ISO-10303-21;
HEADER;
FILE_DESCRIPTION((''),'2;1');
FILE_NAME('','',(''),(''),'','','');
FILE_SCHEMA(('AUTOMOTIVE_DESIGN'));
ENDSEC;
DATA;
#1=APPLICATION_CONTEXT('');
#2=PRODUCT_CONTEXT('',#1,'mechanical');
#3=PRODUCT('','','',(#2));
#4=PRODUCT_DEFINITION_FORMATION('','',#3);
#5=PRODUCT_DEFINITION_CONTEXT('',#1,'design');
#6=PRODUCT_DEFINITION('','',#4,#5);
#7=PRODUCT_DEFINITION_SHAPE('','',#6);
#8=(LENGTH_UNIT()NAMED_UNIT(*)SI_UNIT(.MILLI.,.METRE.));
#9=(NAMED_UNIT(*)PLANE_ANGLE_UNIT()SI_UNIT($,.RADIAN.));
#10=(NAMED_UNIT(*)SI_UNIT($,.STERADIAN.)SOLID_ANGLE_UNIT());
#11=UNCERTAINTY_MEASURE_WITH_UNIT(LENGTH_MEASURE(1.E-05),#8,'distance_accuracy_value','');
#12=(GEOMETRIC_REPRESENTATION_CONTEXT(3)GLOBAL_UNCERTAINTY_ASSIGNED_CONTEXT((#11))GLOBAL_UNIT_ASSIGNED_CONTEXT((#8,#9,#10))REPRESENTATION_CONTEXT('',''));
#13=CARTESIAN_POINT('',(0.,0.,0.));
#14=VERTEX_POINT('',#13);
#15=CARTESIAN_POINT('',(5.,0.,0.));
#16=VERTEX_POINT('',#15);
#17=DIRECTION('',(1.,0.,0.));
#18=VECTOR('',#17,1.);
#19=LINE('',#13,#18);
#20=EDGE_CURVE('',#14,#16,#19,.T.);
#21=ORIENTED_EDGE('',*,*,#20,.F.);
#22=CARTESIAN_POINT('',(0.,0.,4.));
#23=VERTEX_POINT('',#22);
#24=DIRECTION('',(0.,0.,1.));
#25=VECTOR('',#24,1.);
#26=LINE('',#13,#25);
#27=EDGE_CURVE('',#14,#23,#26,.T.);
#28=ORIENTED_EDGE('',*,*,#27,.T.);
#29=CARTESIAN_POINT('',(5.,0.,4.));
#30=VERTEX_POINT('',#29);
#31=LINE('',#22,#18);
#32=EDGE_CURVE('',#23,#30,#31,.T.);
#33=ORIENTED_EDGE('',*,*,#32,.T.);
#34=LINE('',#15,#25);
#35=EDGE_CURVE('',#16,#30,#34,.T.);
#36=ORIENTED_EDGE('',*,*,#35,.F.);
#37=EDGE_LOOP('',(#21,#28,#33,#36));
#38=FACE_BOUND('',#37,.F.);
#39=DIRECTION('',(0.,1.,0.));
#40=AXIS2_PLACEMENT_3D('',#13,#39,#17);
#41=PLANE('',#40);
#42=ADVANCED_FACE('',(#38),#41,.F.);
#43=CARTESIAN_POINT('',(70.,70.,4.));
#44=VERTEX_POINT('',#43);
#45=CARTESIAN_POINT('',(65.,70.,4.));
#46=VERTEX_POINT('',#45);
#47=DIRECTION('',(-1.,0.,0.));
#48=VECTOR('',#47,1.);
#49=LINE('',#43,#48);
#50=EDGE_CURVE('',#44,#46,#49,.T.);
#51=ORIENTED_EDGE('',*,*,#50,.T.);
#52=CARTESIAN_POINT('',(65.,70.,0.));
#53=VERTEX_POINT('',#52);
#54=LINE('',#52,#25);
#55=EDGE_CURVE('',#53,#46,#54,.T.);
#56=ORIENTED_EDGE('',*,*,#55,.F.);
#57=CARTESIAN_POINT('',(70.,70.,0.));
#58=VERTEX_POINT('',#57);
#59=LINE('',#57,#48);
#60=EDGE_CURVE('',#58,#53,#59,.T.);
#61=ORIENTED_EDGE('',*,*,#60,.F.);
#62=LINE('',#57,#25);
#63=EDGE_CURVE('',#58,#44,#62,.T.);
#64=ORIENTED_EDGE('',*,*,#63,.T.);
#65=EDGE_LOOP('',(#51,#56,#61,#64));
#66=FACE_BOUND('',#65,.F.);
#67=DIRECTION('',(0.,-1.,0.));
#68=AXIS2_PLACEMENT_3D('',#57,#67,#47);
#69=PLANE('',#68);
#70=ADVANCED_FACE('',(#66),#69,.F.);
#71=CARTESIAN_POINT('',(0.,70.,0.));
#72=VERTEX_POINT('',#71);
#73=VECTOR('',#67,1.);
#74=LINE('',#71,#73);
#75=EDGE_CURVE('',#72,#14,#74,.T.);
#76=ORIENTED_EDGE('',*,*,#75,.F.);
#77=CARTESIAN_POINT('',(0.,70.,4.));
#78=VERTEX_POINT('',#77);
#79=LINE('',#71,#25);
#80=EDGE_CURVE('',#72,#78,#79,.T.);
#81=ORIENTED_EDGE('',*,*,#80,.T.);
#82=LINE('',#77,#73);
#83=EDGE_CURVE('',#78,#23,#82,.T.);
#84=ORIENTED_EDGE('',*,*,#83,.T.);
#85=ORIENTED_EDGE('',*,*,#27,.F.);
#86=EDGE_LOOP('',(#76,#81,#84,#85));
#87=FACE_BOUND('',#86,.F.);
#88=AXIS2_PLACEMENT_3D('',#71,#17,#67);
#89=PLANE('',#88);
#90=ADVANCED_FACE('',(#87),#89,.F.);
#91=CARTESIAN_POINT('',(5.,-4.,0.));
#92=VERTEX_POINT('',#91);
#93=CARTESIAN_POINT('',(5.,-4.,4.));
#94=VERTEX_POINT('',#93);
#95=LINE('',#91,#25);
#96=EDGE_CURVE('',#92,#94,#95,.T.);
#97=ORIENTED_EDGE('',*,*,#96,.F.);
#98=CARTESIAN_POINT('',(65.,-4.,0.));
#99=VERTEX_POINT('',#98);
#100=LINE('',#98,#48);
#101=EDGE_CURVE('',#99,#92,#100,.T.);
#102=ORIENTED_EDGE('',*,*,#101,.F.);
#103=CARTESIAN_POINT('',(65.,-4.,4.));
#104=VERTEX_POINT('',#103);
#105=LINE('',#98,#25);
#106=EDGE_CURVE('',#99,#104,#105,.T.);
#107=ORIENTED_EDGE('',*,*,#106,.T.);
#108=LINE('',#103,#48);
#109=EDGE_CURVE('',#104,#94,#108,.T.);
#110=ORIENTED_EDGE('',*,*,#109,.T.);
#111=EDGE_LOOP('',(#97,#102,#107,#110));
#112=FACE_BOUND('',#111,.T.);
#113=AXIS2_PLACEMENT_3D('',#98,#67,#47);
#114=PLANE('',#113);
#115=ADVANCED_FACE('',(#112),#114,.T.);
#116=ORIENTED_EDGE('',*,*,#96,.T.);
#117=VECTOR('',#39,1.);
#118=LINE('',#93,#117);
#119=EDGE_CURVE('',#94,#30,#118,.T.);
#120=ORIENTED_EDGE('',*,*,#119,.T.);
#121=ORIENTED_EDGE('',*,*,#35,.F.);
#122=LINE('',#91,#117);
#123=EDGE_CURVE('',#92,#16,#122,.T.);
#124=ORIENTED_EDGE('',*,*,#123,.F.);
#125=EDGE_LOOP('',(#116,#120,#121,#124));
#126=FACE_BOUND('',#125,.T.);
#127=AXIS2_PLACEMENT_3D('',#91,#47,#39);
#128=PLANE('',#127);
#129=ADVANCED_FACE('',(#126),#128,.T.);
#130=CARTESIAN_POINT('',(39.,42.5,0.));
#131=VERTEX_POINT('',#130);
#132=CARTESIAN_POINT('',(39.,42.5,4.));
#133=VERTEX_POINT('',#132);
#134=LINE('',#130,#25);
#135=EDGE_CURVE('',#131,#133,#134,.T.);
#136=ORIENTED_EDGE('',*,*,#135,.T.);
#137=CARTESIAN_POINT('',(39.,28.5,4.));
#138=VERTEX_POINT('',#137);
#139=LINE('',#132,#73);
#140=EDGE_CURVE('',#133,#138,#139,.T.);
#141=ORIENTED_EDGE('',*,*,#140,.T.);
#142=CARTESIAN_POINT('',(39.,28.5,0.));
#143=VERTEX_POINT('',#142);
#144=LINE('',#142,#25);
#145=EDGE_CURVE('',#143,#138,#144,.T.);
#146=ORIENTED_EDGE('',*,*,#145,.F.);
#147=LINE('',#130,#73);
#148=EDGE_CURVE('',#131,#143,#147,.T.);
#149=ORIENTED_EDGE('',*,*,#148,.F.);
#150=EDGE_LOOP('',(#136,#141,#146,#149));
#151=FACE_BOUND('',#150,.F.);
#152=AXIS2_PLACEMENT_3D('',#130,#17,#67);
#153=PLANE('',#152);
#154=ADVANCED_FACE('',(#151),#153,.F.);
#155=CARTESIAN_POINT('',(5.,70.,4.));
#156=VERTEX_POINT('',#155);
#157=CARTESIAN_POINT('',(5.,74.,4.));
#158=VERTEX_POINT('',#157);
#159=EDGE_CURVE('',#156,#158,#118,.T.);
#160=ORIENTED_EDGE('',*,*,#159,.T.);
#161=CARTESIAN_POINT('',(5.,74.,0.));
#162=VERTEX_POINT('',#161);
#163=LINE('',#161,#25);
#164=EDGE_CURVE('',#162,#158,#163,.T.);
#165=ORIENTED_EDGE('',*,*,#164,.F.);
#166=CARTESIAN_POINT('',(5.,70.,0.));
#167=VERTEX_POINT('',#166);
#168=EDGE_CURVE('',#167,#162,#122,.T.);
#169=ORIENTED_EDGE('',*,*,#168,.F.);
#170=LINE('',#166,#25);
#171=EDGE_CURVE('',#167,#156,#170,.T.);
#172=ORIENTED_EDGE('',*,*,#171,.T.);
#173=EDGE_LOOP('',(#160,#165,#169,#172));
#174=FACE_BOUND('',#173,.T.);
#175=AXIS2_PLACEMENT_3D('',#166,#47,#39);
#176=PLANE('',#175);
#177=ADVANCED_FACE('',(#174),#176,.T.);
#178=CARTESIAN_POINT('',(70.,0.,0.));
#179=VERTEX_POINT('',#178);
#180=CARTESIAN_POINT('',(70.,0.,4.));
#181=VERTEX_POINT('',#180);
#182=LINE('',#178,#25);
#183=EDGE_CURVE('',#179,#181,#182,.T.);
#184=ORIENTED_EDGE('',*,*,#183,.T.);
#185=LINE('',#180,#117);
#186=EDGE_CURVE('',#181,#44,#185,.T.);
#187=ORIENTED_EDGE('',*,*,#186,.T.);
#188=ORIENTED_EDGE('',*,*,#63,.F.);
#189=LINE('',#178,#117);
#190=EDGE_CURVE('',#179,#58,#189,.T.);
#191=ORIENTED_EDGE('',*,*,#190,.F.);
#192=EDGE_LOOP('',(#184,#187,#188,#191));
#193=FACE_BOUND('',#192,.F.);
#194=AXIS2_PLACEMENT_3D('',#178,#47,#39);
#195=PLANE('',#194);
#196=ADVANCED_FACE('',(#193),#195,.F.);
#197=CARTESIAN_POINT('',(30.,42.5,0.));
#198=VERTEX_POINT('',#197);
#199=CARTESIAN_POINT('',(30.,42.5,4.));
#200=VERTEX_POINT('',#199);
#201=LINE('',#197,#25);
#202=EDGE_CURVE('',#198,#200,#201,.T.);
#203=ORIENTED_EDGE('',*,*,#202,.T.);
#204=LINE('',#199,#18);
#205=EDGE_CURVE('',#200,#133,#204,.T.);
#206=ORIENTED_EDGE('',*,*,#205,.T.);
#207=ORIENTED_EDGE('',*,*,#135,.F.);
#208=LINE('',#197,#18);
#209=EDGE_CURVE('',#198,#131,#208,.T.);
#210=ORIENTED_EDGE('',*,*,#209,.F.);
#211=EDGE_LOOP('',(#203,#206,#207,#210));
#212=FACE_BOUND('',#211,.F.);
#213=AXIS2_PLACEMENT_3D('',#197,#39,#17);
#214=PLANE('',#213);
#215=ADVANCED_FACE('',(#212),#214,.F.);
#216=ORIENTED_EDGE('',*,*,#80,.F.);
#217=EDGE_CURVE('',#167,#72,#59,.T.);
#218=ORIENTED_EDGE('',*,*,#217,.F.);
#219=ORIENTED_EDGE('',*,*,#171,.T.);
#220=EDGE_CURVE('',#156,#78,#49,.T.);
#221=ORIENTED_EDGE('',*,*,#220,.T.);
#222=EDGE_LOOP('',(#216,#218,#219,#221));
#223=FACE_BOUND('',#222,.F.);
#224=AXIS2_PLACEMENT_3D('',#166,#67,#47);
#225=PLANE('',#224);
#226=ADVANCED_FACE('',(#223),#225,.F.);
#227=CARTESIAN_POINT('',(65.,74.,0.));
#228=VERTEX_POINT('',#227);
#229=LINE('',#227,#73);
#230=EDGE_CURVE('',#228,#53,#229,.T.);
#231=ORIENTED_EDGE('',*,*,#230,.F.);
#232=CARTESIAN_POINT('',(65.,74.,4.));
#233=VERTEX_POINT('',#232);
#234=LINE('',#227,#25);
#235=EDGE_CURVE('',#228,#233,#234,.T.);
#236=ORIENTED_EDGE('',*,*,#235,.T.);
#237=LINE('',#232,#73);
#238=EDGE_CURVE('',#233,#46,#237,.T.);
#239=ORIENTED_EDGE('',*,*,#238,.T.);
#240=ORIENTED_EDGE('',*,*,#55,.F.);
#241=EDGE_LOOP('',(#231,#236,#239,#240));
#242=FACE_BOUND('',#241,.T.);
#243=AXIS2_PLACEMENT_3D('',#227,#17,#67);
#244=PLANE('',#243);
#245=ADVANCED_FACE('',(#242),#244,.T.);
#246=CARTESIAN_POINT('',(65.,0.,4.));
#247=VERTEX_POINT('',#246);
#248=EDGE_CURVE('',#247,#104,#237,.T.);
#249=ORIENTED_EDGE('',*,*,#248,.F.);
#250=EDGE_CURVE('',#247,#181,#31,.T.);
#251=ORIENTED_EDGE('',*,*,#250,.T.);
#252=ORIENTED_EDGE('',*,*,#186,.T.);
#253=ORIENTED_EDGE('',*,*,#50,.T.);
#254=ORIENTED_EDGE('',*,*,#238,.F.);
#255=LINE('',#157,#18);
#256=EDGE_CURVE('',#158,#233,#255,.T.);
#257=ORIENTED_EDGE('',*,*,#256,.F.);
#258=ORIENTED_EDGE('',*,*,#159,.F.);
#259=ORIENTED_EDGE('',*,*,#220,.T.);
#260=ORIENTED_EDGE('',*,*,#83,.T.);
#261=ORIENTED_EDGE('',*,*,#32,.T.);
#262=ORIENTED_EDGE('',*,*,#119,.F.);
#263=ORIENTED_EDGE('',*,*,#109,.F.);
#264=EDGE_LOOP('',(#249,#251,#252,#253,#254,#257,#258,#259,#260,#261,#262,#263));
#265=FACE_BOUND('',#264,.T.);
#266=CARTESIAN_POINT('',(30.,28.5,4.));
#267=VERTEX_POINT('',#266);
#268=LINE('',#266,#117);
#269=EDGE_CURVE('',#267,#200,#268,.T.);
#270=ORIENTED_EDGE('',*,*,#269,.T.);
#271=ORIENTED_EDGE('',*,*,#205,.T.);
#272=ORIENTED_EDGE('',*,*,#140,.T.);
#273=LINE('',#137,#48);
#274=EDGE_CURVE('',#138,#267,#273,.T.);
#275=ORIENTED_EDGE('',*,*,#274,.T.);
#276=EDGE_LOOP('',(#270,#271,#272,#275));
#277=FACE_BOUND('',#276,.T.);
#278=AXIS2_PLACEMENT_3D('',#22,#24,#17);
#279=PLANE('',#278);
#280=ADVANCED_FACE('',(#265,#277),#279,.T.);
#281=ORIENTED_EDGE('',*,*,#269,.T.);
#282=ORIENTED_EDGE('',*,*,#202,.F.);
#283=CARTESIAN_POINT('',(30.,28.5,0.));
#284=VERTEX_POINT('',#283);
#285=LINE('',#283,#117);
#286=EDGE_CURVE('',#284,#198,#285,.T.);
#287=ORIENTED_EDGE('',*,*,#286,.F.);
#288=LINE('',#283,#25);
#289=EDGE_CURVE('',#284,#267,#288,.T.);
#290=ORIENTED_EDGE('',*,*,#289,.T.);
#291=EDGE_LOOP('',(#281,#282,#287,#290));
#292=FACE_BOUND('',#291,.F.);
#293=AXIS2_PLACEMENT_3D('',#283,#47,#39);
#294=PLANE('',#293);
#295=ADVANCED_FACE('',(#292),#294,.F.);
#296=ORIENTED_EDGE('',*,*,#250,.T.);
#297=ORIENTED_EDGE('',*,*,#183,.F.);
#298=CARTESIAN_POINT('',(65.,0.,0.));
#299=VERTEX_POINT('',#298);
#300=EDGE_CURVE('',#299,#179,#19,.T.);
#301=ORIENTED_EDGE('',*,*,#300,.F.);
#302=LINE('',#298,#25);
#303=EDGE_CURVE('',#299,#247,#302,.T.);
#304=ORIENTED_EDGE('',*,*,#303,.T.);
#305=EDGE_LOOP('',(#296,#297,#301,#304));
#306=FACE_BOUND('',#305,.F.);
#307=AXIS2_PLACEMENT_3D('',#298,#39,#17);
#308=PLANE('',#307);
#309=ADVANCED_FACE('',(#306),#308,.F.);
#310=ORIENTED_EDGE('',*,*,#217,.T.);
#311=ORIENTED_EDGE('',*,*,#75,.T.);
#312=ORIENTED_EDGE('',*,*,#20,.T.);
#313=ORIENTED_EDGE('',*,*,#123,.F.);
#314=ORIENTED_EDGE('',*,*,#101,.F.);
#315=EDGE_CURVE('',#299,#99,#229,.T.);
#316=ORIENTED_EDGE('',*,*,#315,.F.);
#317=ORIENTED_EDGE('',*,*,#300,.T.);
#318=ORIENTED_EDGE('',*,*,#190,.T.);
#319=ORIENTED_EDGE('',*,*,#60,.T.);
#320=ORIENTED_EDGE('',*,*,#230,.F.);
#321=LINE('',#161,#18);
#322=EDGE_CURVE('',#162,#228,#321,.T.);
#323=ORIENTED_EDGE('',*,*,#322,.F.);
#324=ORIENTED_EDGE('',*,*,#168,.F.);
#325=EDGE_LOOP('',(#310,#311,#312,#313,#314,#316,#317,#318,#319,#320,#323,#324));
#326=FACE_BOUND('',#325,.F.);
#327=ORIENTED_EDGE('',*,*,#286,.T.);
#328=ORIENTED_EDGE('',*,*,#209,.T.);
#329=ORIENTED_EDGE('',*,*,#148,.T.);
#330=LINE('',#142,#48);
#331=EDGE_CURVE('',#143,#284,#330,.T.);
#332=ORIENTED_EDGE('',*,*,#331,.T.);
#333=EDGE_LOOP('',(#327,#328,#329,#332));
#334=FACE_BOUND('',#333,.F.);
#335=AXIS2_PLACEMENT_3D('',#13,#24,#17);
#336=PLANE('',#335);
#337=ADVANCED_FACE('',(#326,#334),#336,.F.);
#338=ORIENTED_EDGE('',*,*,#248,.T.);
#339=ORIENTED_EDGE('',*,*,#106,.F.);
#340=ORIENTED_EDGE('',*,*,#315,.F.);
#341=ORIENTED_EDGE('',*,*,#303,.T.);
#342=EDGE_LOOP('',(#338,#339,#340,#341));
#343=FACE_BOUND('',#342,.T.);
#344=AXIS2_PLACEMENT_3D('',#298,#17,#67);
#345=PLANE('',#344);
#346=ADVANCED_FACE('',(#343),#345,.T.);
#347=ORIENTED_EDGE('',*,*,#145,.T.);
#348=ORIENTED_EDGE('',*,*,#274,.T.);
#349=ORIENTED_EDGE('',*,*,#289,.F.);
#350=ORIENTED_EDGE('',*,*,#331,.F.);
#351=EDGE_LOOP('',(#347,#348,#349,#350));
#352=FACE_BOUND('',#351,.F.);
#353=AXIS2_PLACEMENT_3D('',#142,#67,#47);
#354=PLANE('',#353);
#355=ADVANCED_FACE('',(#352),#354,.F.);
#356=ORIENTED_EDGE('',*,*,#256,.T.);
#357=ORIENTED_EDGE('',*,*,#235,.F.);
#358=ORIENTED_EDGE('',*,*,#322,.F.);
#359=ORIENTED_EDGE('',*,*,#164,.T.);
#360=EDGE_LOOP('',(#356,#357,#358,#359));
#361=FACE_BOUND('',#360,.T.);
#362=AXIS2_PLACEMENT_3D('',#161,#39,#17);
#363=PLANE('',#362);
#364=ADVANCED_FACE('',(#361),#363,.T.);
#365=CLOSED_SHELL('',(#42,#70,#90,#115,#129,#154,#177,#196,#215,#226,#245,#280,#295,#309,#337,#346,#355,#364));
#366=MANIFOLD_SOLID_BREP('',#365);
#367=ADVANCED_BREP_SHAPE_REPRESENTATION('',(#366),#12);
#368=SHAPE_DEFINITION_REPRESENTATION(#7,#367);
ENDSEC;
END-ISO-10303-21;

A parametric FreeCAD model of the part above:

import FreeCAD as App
import Part
import Sketcher
from FreeCAD import Vector

doc = App.newDocument("Part")
params = doc.addObject("Spreadsheet::Sheet", "Params")
for row, (alias, value) in enumerate([
    ("sketch1_width", "5 mm"),
    ("sketch1_width2", "9 mm"),
    ("sketch1_height", "70 mm"),
    ("sketch1_height2", "4 mm"),
    ("sketch1_height3", "14 mm"),
    ("pad1_length", "4 mm"),
], start=1):
    params.set(f"A{row}", alias)
    params.set(f"B{row}", "=" + value)
    params.setAlias(f"B{row}", alias)

body = doc.addObject("PartDesign::Body", "Body")

sketch1 = doc.addObject("Sketcher::SketchObject", "Sketch")
body.addObject(sketch1)
sketch1.AttachmentSupport = (doc.XY_Plane, [""])
sketch1.MapMode = "FlatFace"
sketch1.addGeometry([
    Part.LineSegment(Vector(0, 70, 0), Vector(0, 0, 0)),
    Part.LineSegment(Vector(0, 0, 0), Vector(5, 0, 0)),
    Part.LineSegment(Vector(5, 0, 0), Vector(5, -4, 0)),
    Part.LineSegment(Vector(5, -4, 0), Vector(65, -4, 0)),
    Part.LineSegment(Vector(65, -4, 0), Vector(65, 0, 0)),
    Part.LineSegment(Vector(65, 0, 0), Vector(70, 0, 0)),
    Part.LineSegment(Vector(70, 0, 0), Vector(70, 70, 0)),
    Part.LineSegment(Vector(70, 70, 0), Vector(65, 70, 0)),
    Part.LineSegment(Vector(65, 70, 0), Vector(65, 74, 0)),
    Part.LineSegment(Vector(65, 74, 0), Vector(5, 74, 0)),
    Part.LineSegment(Vector(5, 74, 0), Vector(5, 70, 0)),
    Part.LineSegment(Vector(5, 70, 0), Vector(0, 70, 0)),
    Part.LineSegment(Vector(30, 42.5, 0), Vector(39, 42.5, 0)),
    Part.LineSegment(Vector(39, 42.5, 0), Vector(39, 28.5, 0)),
    Part.LineSegment(Vector(39, 28.5, 0), Vector(30, 28.5, 0)),
    Part.LineSegment(Vector(30, 28.5, 0), Vector(30, 42.5, 0)),
], False)
sketch1.addConstraint([
    Sketcher.Constraint("Coincident", 0, 2, 1, 1),
    Sketcher.Constraint("Coincident", 1, 2, 2, 1),
    Sketcher.Constraint("Coincident", 2, 2, 3, 1),
    Sketcher.Constraint("Coincident", 3, 2, 4, 1),
    Sketcher.Constraint("Coincident", 4, 2, 5, 1),
    Sketcher.Constraint("Coincident", 5, 2, 6, 1),
    Sketcher.Constraint("Coincident", 6, 2, 7, 1),
    Sketcher.Constraint("Coincident", 7, 2, 8, 1),
    Sketcher.Constraint("Coincident", 8, 2, 9, 1),
    Sketcher.Constraint("Coincident", 9, 2, 10, 1),
    Sketcher.Constraint("Coincident", 10, 2, 11, 1),
    Sketcher.Constraint("Coincident", 11, 2, 0, 1),
    Sketcher.Constraint("Coincident", 12, 2, 13, 1),
    Sketcher.Constraint("Coincident", 13, 2, 14, 1),
    Sketcher.Constraint("Coincident", 14, 2, 15, 1),
    Sketcher.Constraint("Coincident", 15, 2, 12, 1),
    Sketcher.Constraint("Vertical", 0),
    Sketcher.Constraint("Horizontal", 1),
    Sketcher.Constraint("Vertical", 2),
    Sketcher.Constraint("Horizontal", 3),
    Sketcher.Constraint("Vertical", 4),
    Sketcher.Constraint("Horizontal", 5),
    Sketcher.Constraint("Vertical", 6),
    Sketcher.Constraint("Horizontal", 7),
    Sketcher.Constraint("Vertical", 8),
    Sketcher.Constraint("Horizontal", 9),
    Sketcher.Constraint("Vertical", 10),
    Sketcher.Constraint("Horizontal", 11),
    Sketcher.Constraint("Horizontal", 12),
    Sketcher.Constraint("Vertical", 13),
    Sketcher.Constraint("Horizontal", 14),
    Sketcher.Constraint("Vertical", 15),
    Sketcher.Constraint("Coincident", 0, 2, -1, 1),
    Sketcher.Constraint("PointOnObject", 4, 2, -1),
    Sketcher.Constraint("Horizontal", 7, 2, 10, 2),
    Sketcher.Constraint("Vertical", 4, 2, 7, 2),
    Sketcher.Constraint("Vertical", 2, 2, 9, 2),
    Sketcher.Constraint("Equal", 1, 5),
    Sketcher.Constraint("Equal", 4, 8),
    Sketcher.Constraint("DistanceX", 1, 1, 1, 2, 5.0),
    Sketcher.Constraint("DistanceX", 12, 1, 12, 2, 9.0),
    Sketcher.Constraint("DistanceY", 0, 2, 0, 1, 70.0),
    Sketcher.Constraint("DistanceY", 2, 2, 2, 1, 4.0),
    Sketcher.Constraint("DistanceY", 13, 2, 13, 1, 14.0),
    Sketcher.Constraint("DistanceX", -1, 1, 5, 2, 70.0),
    Sketcher.Constraint("DistanceX", 12, 2, 7, 2, 26.0),
    Sketcher.Constraint("DistanceY", -1, 1, 13, 2, 28.5),
])
sketch1.setExpression("Constraints[39]", "Params.sketch1_width")
sketch1.setExpression("Constraints[40]", "Params.sketch1_width2")
sketch1.setExpression("Constraints[41]", "Params.sketch1_height")
sketch1.setExpression("Constraints[42]", "Params.sketch1_height2")
sketch1.setExpression("Constraints[43]", "Params.sketch1_height3")
pad1 = doc.addObject("PartDesign::Pad", "Pad")
body.addObject(pad1)
pad1.Profile = sketch1
pad1.setExpression("Length", "Params.pad1_length")

doc.recompute()
